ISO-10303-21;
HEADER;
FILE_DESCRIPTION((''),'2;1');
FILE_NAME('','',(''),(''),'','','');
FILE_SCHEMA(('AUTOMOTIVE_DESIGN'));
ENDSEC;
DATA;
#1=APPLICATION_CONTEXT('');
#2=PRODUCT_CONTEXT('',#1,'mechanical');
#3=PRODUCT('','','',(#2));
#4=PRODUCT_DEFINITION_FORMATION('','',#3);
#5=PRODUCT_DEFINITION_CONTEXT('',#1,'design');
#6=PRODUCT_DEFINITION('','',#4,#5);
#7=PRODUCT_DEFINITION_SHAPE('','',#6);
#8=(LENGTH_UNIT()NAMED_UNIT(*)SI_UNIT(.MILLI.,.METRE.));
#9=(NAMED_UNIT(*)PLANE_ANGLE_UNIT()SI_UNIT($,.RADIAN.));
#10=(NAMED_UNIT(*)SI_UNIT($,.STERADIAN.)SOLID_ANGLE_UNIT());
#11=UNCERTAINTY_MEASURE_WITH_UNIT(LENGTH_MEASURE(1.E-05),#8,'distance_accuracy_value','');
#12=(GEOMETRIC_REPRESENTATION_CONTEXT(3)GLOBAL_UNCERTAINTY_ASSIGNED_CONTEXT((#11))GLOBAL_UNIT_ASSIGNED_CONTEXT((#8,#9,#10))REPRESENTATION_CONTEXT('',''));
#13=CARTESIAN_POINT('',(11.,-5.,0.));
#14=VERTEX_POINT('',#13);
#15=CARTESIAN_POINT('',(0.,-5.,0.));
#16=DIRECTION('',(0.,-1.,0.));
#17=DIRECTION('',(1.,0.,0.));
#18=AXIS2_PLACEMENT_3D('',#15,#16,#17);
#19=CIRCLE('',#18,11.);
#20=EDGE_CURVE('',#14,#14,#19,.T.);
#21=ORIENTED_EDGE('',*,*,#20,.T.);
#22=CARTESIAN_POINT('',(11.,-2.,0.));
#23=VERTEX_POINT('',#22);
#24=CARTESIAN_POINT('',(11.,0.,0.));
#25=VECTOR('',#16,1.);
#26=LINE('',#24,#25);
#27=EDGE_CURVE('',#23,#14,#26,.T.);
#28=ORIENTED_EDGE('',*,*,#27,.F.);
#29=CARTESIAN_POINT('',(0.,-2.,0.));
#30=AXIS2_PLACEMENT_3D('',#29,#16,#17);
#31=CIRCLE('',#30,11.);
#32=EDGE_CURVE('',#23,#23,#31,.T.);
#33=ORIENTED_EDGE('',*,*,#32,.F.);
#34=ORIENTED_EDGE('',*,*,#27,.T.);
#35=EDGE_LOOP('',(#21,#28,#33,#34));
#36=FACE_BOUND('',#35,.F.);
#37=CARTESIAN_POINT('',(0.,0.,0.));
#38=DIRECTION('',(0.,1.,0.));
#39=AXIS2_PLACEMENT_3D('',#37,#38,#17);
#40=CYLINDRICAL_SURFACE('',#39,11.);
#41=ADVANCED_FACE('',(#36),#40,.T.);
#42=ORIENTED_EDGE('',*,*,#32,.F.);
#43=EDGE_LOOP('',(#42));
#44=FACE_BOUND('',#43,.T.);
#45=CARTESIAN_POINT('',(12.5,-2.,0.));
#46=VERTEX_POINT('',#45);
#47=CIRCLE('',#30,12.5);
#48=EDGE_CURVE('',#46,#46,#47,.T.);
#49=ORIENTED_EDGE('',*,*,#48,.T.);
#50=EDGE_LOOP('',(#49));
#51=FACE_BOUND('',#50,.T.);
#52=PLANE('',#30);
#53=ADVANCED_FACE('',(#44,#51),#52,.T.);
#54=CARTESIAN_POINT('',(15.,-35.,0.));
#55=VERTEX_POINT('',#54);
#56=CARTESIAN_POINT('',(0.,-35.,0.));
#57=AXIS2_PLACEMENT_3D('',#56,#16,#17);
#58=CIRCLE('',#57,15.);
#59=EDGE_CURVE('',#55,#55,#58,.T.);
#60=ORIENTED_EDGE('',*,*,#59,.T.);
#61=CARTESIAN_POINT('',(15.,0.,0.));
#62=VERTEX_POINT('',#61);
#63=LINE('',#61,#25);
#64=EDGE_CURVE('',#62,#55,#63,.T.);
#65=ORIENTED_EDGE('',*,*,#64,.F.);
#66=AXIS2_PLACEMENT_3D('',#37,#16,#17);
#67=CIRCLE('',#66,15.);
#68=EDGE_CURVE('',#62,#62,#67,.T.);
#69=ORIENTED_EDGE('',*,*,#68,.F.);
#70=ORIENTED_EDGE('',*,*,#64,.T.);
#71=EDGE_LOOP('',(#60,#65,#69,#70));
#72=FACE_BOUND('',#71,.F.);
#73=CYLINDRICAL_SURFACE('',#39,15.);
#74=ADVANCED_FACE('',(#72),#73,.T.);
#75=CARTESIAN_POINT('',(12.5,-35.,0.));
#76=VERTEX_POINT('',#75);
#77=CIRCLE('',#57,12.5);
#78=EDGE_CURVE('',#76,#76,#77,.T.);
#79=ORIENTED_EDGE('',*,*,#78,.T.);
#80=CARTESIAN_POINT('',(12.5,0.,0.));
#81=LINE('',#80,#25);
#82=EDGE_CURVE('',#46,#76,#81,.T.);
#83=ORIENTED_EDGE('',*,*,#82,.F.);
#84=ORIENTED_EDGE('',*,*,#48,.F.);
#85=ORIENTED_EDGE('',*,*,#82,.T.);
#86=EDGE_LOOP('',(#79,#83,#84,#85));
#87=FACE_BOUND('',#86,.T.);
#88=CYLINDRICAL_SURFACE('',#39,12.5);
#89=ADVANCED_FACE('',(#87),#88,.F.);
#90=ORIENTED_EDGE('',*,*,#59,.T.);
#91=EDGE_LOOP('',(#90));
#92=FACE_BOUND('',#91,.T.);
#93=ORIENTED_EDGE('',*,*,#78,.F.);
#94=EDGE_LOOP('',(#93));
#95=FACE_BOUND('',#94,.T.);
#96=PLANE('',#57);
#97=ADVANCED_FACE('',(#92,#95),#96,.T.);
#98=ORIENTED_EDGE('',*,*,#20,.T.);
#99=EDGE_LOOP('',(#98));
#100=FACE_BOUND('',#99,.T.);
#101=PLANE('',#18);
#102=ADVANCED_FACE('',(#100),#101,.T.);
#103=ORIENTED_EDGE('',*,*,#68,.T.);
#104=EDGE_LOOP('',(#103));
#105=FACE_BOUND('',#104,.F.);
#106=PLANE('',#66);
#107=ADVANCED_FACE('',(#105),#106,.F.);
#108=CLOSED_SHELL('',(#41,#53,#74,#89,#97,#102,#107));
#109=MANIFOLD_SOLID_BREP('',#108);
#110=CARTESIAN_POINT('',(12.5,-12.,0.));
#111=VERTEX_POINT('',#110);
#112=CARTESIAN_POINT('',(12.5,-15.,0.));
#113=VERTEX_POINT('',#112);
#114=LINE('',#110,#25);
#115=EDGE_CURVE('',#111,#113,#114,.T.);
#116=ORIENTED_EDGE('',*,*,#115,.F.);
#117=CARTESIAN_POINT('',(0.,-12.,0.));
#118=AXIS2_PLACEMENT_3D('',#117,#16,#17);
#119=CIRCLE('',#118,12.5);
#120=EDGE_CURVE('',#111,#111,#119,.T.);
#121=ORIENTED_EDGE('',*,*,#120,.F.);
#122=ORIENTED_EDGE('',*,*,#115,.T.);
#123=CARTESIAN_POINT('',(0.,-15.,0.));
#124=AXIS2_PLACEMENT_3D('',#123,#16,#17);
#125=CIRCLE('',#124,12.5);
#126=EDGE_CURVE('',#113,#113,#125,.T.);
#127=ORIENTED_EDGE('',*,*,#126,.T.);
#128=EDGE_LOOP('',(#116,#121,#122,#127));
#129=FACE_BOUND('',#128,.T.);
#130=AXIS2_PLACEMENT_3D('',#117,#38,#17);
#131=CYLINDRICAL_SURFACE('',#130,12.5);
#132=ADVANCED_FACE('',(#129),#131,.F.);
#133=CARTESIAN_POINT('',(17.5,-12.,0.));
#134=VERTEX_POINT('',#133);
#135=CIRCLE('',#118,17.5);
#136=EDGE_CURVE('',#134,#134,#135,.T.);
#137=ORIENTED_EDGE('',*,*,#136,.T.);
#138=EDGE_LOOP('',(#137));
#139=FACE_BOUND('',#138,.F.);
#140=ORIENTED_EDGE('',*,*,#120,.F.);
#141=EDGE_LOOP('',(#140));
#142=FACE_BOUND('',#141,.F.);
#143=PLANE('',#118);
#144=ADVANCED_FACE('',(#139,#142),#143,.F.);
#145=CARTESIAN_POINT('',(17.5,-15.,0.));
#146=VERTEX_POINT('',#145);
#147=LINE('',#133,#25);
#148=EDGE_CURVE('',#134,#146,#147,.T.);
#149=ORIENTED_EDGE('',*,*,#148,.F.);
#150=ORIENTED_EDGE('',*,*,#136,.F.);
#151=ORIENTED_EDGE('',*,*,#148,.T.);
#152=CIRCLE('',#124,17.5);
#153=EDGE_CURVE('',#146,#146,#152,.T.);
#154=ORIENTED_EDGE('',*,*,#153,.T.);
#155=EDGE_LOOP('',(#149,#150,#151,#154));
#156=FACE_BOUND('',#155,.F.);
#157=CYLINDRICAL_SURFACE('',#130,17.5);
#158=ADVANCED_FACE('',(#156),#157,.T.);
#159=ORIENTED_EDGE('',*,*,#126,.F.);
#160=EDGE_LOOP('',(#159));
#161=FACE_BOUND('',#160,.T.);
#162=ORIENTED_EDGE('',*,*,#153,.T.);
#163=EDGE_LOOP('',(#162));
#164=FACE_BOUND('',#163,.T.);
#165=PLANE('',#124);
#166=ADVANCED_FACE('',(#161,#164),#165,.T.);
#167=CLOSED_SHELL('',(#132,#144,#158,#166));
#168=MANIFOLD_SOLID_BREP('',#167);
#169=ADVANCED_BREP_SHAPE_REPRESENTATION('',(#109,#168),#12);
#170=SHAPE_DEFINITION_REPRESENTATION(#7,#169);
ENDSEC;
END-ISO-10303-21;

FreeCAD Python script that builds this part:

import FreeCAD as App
import Part
import Sketcher
Q = App.Units.Quantity

doc = App.newDocument("Part")
body = doc.addObject("PartDesign::Body", "Body")

sketch1 = doc.addObject("Sketcher::SketchObject", "Sketch")
body.addObject(sketch1)
sketch1.AttachmentSupport = (doc.XZ_Plane, [""])
sketch1.MapMode = "FlatFace"
sketch1.addGeometry([
    Part.Circle(App.Vector(0, 0, 0), App.Vector(0, 0, 1), 15),
    Part.Circle(App.Vector(0, 0, 0), App.Vector(0, 0, 1), 12.5),
], False)
sketch1.addConstraint([
    Sketcher.Constraint("Coincident", 0, 3, -1, 1),
    Sketcher.Constraint("Coincident", 1, 3, -1, 1),
    Sketcher.Constraint("Diameter", 0, Q("30 mm")),
    Sketcher.Constraint("Diameter", 1, Q("25 mm")),
])
pad1 = doc.addObject("PartDesign::Pad", "Pad")
body.addObject(pad1)
pad1.Profile = sketch1
pad1.Length = 35

sketch2 = doc.addObject("Sketcher::SketchObject", "Sketch001")
body.addObject(sketch2)
sketch2.AttachmentSupport = (doc.XZ_Plane, [""])
sketch2.MapMode = "FlatFace"
sketch2.addGeometry([
    Part.Circle(App.Vector(0, 0, 0), App.Vector(0, 0, 1), 12.5),
    Part.Circle(App.Vector(0, 0, 0), App.Vector(0, 0, 1), 11),
], False)
sketch2.addConstraint([
    Sketcher.Constraint("Coincident", 0, 3, -1, 1),
    Sketcher.Constraint("Coincident", 1, 3, -1, 1),
    Sketcher.Constraint("Diameter", 0, Q("25 mm")),
    Sketcher.Constraint("Diameter", 1, Q("22 mm")),
])
pad2 = doc.addObject("PartDesign::Pad", "Pad001")
body.addObject(pad2)
pad2.Profile = sketch2
pad2.Length = 2

sketch3 = doc.addObject("Sketcher::SketchObject", "Sketch002")
body.addObject(sketch3)
sketch3.AttachmentSupport = (doc.XZ_Plane, [""])
sketch3.MapMode = "FlatFace"
sketch3.addGeometry(Part.Circle(App.Vector(0, 0, 0), App.Vector(0, 0, 1), 11), False)
sketch3.addConstraint([
    Sketcher.Constraint("Coincident", 0, 3, -1, 1),
    Sketcher.Constraint("Diameter", 0, Q("22 mm")),
])
pad3 = doc.addObject("PartDesign::Pad", "Pad002")
body.addObject(pad3)
pad3.Profile = sketch3
pad3.Length = 5
body2 = doc.addObject("PartDesign::Body", "Body001")

sketch4 = doc.addObject("Sketcher::SketchObject", "Sketch003")
body2.addObject(sketch4)
sketch4.AttachmentSupport = (doc.getObject("XZ_Plane001"), [""])
sketch4.MapMode = "FlatFace"
sketch4.addGeometry([
    Part.Circle(App.Vector(0, 0, 0), App.Vector(0, 0, 1), 17.5),
    Part.Circle(App.Vector(0, 0, 0), App.Vector(0, 0, 1), 12.5),
], False)
sketch4.addConstraint([
    Sketcher.Constraint("Coincident", 0, 3, -1, 1),
    Sketcher.Constraint("Coincident", 1, 3, -1, 1),
    Sketcher.Constraint("Diameter", 0, Q("35 mm")),
    Sketcher.Constraint("Diameter", 1, Q("25 mm")),
])
pad4 = doc.addObject("PartDesign::Pad", "Pad003")
body2.addObject(pad4)
pad4.Profile = sketch4
pad4.Length = 3
body3 = doc.addObject("PartDesign::Body", "Body002")
doc.recompute()

body2.Placement = App.Placement(App.Vector(0, -12, 0), App.Rotation(App.Vector(0, 0, 1), 0))
boolean = doc.addObject("PartDesign::Boolean", "Boolean")
body3.addObject(boolean)
boolean.Type = "Fuse"
boolean.addObjects([body2])

doc.recompute()
